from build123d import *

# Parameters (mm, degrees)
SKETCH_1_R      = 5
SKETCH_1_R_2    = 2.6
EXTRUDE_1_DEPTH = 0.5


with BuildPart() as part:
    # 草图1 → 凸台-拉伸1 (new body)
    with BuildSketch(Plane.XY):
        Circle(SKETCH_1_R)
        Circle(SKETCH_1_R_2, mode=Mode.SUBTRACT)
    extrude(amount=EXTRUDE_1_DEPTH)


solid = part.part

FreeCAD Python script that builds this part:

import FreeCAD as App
import Part
import Sketcher
from FreeCAD import Vector

doc = App.newDocument("Part")
params = doc.addObject("Spreadsheet::Sheet", "Params")
for row, (alias, value) in enumerate([
    ("sketch1_diameter", "10 mm"),
    ("sketch1_diameter2", "5.2 mm"),
    ("pad1_length", "0.5 mm"),
], start=1):
    params.set(f"A{row}", alias)
    params.set(f"B{row}", "=" + value)
    params.setAlias(f"B{row}", alias)

body = doc.addObject("PartDesign::Body", "Body")

# Sketch on XY plane
sketch1 = body.newObject("Sketcher::SketchObject", "Sketch")
sketch1.AttachmentSupport = (doc.getObject("XY_Plane"), [""])
sketch1.MapMode = "FlatFace"
sketch1.addGeometry([
    Part.Circle(Vector(0, 0, 0), Vector(0, 0, 1), 5),
    Part.Circle(Vector(0, 0, 0), Vector(0, 0, 1), 2.6),
], False)
sketch1.addConstraint([
    Sketcher.Constraint("Coincident", 0, 3, -1, 1),
    Sketcher.Constraint("Coincident", 1, 3, -1, 1),
    Sketcher.Constraint("Diameter", 0, 10.0),
    Sketcher.Constraint("Diameter", 1, 5.2),
])
sketch1.setExpression("Constraints[2]", "Params.sketch1_diameter")
sketch1.setExpression("Constraints[3]", "Params.sketch1_diameter2")
pad1 = body.newObject("PartDesign::Pad", "Pad")
pad1.Profile = sketch1
pad1.setExpression("Length", "Params.pad1_length")

doc.recompute()
